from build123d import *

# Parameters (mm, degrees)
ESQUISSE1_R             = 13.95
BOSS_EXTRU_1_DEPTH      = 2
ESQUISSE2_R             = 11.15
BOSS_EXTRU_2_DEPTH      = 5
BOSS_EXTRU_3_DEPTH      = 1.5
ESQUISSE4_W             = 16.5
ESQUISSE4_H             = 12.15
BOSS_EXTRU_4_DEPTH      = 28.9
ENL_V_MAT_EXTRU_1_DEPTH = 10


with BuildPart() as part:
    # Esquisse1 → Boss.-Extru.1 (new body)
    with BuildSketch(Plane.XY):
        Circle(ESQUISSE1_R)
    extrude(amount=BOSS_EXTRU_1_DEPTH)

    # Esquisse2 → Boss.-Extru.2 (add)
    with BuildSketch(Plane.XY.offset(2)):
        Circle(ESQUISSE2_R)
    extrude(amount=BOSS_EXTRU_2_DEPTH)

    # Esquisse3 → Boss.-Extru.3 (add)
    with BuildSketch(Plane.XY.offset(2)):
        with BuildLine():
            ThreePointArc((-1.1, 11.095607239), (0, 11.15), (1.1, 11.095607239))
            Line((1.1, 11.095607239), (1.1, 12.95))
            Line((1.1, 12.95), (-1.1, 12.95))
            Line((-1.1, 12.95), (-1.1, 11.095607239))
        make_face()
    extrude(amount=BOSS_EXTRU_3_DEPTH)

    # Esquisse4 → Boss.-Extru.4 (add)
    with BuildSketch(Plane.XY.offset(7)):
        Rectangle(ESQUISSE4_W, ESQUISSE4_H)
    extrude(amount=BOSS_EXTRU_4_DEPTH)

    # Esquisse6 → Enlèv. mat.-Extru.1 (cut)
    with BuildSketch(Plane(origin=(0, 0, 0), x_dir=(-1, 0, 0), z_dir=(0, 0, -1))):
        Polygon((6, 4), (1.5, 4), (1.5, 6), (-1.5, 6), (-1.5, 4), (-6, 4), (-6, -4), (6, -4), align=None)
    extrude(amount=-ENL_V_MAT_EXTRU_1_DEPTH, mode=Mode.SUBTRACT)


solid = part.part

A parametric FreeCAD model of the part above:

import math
import FreeCAD as App
import Part
import Sketcher

V = App.Vector
Q = App.Units.Quantity


def add_polygon(sketch, points):
    """Adds a closed chain of lines whose ends are joined by coincident constraints."""
    first, n = sketch.GeometryCount, len(points)
    for a, b in zip(points, points[1:] + points[:1]):
        sketch.addGeometry(Part.LineSegment(App.Vector(*a, 0), App.Vector(*b, 0)), False)
    for i in range(n):
        sketch.addConstraint(Sketcher.Constraint("Coincident", first + i, 2, first + (i + 1) % n, 1))

doc = App.newDocument("Part")
body = doc.addObject("PartDesign::Body", "Body")

sketch1 = doc.addObject("Sketcher::SketchObject", "Sketch")
body.addObject(sketch1)
sketch1.AttachmentSupport = (doc.XY_Plane, [""])
sketch1.MapMode = "FlatFace"
sketch1.addGeometry(Part.Circle(V(0, 0, 0), V(0, 0, 1), 14), False)
sketch1.addConstraint([
    Sketcher.Constraint("Coincident", 0, 3, -1, 1),
    Sketcher.Constraint("Diameter", 0, Q("27.9 mm")),
])
pad1 = doc.addObject("PartDesign::Pad", "Pad")
body.addObject(pad1)
pad1.Profile = sketch1
pad1.Length = 2

sketch2 = doc.addObject("Sketcher::SketchObject", "Sketch001")
body.addObject(sketch2)
sketch2.AttachmentSupport = (doc.XY_Plane, [""])
sketch2.MapMode = "FlatFace"
sketch2.AttachmentOffset = App.Placement(V(0, 0, 2), App.Rotation())
sketch2.addGeometry(Part.Circle(V(0, 0, 0), V(0, 0, 1), 11), False)
sketch2.addConstraint([
    Sketcher.Constraint("Coincident", 0, 3, -1, 1),
    Sketcher.Constraint("Diameter", 0, Q("22.3 mm")),
])
pad2 = doc.addObject("PartDesign::Pad", "Pad001")
body.addObject(pad2)
pad2.Profile = sketch2
pad2.Length = 5

sketch3 = doc.addObject("Sketcher::SketchObject", "Sketch002")
body.addObject(sketch3)
sketch3.AttachmentSupport = (doc.XY_Plane, [""])
sketch3.MapMode = "FlatFace"
sketch3.AttachmentOffset = App.Placement(V(0, 0, 2), App.Rotation())
sketch3.addGeometry([
    Part.ArcOfCircle(Part.Circle(V(0, 0, 0), V(0, 0, 1), 11.2), math.radians(84.34), math.radians(95.66)),
    Part.LineSegment(V(1.1, 11.1, 0), V(1.1, 12.9, 0)),
    Part.LineSegment(V(1.1, 12.9, 0), V(-1.1, 12.9, 0)),
    Part.LineSegment(V(-1.1, 12.9, 0), V(-1.1, 11.1, 0)),
], False)
sketch3.addConstraint([
    Sketcher.Constraint("Coincident", 0, 1, 1, 1),
    Sketcher.Constraint("Coincident", 1, 2, 2, 1),
    Sketcher.Constraint("Coincident", 2, 2, 3, 1),
    Sketcher.Constraint("Coincident", 3, 2, 0, 2),
    Sketcher.Constraint("Vertical", 1),
    Sketcher.Constraint("Horizontal", 2),
    Sketcher.Constraint("Vertical", 3),
    Sketcher.Constraint("Coincident", 0, 3, -1, 1),
    Sketcher.Constraint("Horizontal", 0, 1, 3, 2),
    Sketcher.Constraint("Radius", 0, Q("11.15 mm")),
    Sketcher.Constraint("DistanceX", 2, 2, 2, 1, Q("2.2 mm")),
    Sketcher.Constraint("DistanceY", -1, 1, 1, 2, Q("12.95 mm")),
])
pad3 = doc.addObject("PartDesign::Pad", "Pad002")
body.addObject(pad3)
pad3.Profile = sketch3
pad3.Length = 1.5

sketch4 = doc.addObject("Sketcher::SketchObject", "Sketch003")
body.addObject(sketch4)
sketch4.AttachmentSupport = (doc.XY_Plane, [""])
sketch4.MapMode = "FlatFace"
sketch4.AttachmentOffset = App.Placement(V(0, 0, 7), App.Rotation())
add_polygon(sketch4, [(-8, 6), (-8, -6), (8, -6), (8, 6)])
sketch4.addConstraint([
    Sketcher.Constraint("Vertical", 0),
    Sketcher.Constraint("Horizontal", 1),
    Sketcher.Constraint("Vertical", 2),
    Sketcher.Constraint("Horizontal", 3),
    Sketcher.Constraint("Symmetric", 0, 2, 2, 2, -1, 1),
    Sketcher.Constraint("DistanceX", 1, 1, 1, 2, Q("16.5 mm")),
    Sketcher.Constraint("DistanceY", 0, 2, 0, 1, Q("12.15 mm")),
])
pad4 = doc.addObject("PartDesign::Pad", "Pad003")
body.addObject(pad4)
pad4.Profile = sketch4
pad4.Length = 28.9

sketch5 = doc.addObject("Sketcher::SketchObject", "Sketch004")
body.addObject(sketch5)
sketch5.AttachmentSupport = (doc.XY_Plane, [""])
sketch5.MapMode = "FlatFace"
add_polygon(sketch5, [(-6, 4), (-1.5, 4), (-1.5, 6), (1.5, 6), (1.5, 4), (6, 4), (6, -4), (-6, -4)])
sketch5.addConstraint([
    Sketcher.Constraint("Horizontal", 0),
    Sketcher.Constraint("Vertical", 1),
    Sketcher.Constraint("Horizontal", 2),
    Sketcher.Constraint("Vertical", 3),
    Sketcher.Constraint("Horizontal", 4),
    Sketcher.Constraint("Vertical", 5),
    Sketcher.Constraint("Horizontal", 6),
    Sketcher.Constraint("Vertical", 7),
    Sketcher.Constraint("Symmetric", 4, 2, 6, 2, -1, 1),
    Sketcher.Constraint("Symmetric", 0, 2, 3, 2, -2),
    Sketcher.Constraint("DistanceX", 2, 1, 2, 2, Q("3 mm")),
    Sketcher.Constraint("DistanceX", 6, 2, 6, 1, Q("12 mm")),
    Sketcher.Constraint("DistanceY", 1, 1, 1, 2, Q("2 mm")),
    Sketcher.Constraint("DistanceY", 5, 2, 5, 1, Q("8 mm")),
])
pocket1 = doc.addObject("PartDesign::Pocket", "Pocket")
body.addObject(pocket1)
pocket1.Profile = sketch5
pocket1.Length = 10
pocket1.Reversed = True

doc.recompute()
